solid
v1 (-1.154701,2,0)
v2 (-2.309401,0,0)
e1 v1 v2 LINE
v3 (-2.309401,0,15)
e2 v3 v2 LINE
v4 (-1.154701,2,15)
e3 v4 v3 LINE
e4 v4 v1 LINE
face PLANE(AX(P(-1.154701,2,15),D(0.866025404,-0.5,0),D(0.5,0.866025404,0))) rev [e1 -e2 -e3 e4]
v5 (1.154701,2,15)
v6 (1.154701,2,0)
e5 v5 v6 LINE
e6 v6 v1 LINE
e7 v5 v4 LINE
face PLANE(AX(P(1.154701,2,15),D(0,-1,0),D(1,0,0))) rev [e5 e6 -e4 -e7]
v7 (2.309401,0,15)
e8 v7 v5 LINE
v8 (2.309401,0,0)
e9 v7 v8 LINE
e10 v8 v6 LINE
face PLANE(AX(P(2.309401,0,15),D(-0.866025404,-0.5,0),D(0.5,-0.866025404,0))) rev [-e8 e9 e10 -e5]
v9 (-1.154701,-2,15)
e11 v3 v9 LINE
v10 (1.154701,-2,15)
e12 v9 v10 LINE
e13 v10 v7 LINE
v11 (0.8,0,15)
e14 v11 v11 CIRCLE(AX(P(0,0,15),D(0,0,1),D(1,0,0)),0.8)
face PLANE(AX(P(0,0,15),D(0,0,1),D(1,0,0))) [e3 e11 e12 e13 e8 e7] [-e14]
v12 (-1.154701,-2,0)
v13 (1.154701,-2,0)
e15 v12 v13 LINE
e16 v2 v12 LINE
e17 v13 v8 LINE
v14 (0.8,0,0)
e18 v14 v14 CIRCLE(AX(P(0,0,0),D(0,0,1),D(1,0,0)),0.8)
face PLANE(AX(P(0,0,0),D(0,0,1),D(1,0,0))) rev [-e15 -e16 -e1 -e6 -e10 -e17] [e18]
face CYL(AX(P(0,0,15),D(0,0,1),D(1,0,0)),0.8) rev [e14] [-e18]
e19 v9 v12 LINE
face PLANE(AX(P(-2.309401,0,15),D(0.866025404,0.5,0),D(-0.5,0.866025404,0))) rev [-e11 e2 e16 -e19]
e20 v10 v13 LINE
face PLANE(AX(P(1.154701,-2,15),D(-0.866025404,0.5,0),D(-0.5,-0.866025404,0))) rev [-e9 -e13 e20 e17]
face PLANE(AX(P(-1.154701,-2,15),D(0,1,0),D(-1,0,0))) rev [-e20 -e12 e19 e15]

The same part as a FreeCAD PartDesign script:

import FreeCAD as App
import Part
import Sketcher
Q = App.Units.Quantity


def add_polygon(sketch, points):
    """Adds a closed chain of lines whose ends are joined by coincident constraints."""
    first, n = sketch.GeometryCount, len(points)
    for a, b in zip(points, points[1:] + points[:1]):
        sketch.addGeometry(Part.LineSegment(App.Vector(*a, 0), App.Vector(*b, 0)), False)
    for i in range(n):
        sketch.addConstraint(Sketcher.Constraint("Coincident", first + i, 2, first + (i + 1) % n, 1))

doc = App.newDocument("Part")
body = doc.addObject("PartDesign::Body", "Body")

sketch1 = body.newObject("Sketcher::SketchObject", "Sketch")
sketch1.AttachmentSupport = (doc.getObject("XY_Plane"), [""])
sketch1.MapMode = "FlatFace"
add_polygon(sketch1, [(1.154701, 2), (-1.154701, 2), (-2.309401, 0), (-1.154701, -2), (1.154701, -2), (2.309401, 0)])
sketch1.addConstraint([
    Sketcher.Constraint("Horizontal", 0),
    Sketcher.Constraint("Horizontal", 3),
    Sketcher.Constraint("Symmetric", 0, 2, 3, 2, -1, 1),
    Sketcher.Constraint("Symmetric", 1, 2, 4, 2, -1, 1),
    Sketcher.Constraint("PointOnObject", 1, 2, -1),
    Sketcher.Constraint("Parallel", 2, 5),
    Sketcher.Constraint("Vertical", 0, 2, 2, 2),
    Sketcher.Constraint("Angle", 1, Q("-120 deg")),
    Sketcher.Constraint("DistanceY", -1, 1, 0, 2, 2.0),
    Sketcher.Constraint("DistanceX", 0, 2, 0, 1, 2.309401),
])
pad1 = body.newObject("PartDesign::Pad", "Pad")
pad1.Profile = sketch1
pad1.Length = 15

sketch2 = body.newObject("Sketcher::SketchObject", "Sketch001")
sketch2.AttachmentSupport = (doc.getObject("XY_Plane"), [""])
sketch2.MapMode = "FlatFace"
sketch2.AttachmentOffset = App.Placement(App.Vector(0, 0, 15), App.Rotation())
sketch2.addGeometry(Part.Circle(App.Vector(0, 0, 0), App.Vector(0, 0, 1), 0.8), False)
sketch2.addConstraint([
    Sketcher.Constraint("Coincident", 0, 3, -1, 1),
    Sketcher.Constraint("Diameter", 0, 1.6),
])
doc.recompute()
hole = body.newObject("PartDesign::Hole", "Hole")
hole.Profile = sketch2
hole.ThreadType = "None"
hole.Diameter = 1.6
hole.DepthType = "ThroughAll"

doc.recompute()
